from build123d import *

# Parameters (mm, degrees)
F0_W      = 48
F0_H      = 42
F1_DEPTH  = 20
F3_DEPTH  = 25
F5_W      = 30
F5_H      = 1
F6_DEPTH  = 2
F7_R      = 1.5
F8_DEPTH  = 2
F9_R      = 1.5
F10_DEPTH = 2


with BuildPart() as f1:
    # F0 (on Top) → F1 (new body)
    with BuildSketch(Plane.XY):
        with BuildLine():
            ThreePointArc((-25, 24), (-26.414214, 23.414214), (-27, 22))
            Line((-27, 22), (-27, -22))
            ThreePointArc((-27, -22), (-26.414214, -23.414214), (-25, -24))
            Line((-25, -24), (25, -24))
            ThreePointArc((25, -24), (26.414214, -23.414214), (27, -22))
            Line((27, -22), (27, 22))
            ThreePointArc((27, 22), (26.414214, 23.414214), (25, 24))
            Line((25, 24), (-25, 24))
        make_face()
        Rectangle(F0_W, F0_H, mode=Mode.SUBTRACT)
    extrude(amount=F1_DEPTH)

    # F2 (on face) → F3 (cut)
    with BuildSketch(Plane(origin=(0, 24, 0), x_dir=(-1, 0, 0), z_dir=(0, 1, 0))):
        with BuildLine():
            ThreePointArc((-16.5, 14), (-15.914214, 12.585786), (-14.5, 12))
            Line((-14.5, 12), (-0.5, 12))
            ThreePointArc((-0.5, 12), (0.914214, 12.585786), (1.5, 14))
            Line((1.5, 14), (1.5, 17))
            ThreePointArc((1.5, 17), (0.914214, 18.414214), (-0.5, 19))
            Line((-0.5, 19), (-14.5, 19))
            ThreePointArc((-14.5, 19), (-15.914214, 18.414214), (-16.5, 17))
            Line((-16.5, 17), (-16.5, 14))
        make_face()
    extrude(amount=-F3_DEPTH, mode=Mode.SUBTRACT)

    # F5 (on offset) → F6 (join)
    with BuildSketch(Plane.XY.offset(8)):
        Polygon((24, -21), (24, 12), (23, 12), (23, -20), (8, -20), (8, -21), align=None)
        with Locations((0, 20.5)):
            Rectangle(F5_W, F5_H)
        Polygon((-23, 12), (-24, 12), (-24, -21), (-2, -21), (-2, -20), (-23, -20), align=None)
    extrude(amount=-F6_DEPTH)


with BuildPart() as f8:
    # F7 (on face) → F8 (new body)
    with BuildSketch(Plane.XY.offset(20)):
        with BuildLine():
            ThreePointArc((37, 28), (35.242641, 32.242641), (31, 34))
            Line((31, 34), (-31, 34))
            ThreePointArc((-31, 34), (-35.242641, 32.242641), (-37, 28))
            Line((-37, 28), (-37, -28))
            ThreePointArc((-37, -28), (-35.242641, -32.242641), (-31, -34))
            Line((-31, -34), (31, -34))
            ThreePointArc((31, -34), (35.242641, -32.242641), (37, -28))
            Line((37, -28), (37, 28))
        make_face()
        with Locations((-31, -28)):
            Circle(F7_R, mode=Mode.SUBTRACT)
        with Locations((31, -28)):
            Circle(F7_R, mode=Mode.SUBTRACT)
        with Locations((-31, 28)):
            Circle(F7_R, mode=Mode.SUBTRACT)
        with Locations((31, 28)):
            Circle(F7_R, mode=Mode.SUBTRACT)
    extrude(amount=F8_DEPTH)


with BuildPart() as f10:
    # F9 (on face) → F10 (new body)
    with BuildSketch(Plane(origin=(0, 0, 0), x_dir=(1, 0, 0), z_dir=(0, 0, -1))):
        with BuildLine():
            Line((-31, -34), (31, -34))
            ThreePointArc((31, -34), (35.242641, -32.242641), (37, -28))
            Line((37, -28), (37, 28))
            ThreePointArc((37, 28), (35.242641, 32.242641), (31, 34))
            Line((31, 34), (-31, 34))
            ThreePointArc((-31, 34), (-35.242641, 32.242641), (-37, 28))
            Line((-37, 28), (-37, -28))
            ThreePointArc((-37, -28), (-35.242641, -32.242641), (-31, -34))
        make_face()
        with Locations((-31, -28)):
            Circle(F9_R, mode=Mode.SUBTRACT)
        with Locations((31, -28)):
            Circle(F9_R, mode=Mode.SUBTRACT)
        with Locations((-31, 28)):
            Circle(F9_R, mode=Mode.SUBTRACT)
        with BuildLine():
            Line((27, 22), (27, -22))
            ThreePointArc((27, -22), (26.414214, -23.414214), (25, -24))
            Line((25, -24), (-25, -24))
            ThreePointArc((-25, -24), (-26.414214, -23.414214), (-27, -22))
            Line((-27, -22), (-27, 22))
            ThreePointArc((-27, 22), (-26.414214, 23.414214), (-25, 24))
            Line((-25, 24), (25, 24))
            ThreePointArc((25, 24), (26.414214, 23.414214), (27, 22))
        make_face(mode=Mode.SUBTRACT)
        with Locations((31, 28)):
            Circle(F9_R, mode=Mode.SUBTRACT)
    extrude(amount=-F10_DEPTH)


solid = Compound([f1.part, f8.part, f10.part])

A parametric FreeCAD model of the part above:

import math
import FreeCAD as App
import Part
import Sketcher

V = App.Vector


def add_polygon(sketch, points):
    """Adds a closed chain of lines whose ends are joined by coincident constraints."""
    first, n = sketch.GeometryCount, len(points)
    for a, b in zip(points, points[1:] + points[:1]):
        sketch.addGeometry(Part.LineSegment(App.Vector(*a, 0), App.Vector(*b, 0)), False)
    for i in range(n):
        sketch.addConstraint(Sketcher.Constraint("Coincident", first + i, 2, first + (i + 1) % n, 1))

doc = App.newDocument("Part")
body = doc.addObject("PartDesign::Body", "Body")

# Sketch on XY plane
sketch1 = body.newObject("Sketcher::SketchObject", "Sketch")
sketch1.AttachmentSupport = (doc.getObject("XY_Plane"), [""])
sketch1.MapMode = "FlatFace"
sketch1.addGeometry(Part.ArcOfCircle(Part.Circle(V(-25.000001, 22.000001, 0), V(0, 0, 1), 1.999999), math.radians(89.999957), math.radians(180.000043)), False)  # 0
sketch1.addGeometry(Part.LineSegment(V(-27, 22, 0), V(-27, -22, 0)), False)  # 1
sketch1.addGeometry(Part.ArcOfCircle(Part.Circle(V(-25.000001, -22.000001, 0), V(0, 0, 1), 1.999999), math.radians(179.999957), math.radians(270.000043)), False)  # 2
sketch1.addGeometry(Part.LineSegment(V(-25, -24, 0), V(25, -24, 0)), False)  # 3
sketch1.addGeometry(Part.ArcOfCircle(Part.Circle(V(25.000001, -22.000001, 0), V(0, 0, 1), 1.999999), math.radians(-90.000043), math.radians(0.000043)), False)  # 4
sketch1.addGeometry(Part.LineSegment(V(27, -22, 0), V(27, 22, 0)), False)  # 5
sketch1.addGeometry(Part.ArcOfCircle(Part.Circle(V(25.000001, 22.000001, 0), V(0, 0, 1), 1.999999), math.radians(-0.000043), math.radians(90.000043)), False)  # 6
sketch1.addGeometry(Part.LineSegment(V(25, 24, 0), V(-25, 24, 0)), False)  # 7
add_polygon(sketch1, [(24, -21), (-24, -21), (-24, 21), (24, 21)])  # lines 8-11
sketch1.addConstraint(Sketcher.Constraint("Tangent", 0, 2, 1, 1))
sketch1.addConstraint(Sketcher.Constraint("Tangent", 1, 2, 2, 1))
sketch1.addConstraint(Sketcher.Constraint("Tangent", 2, 2, 3, 1))
sketch1.addConstraint(Sketcher.Constraint("Tangent", 3, 2, 4, 1))
sketch1.addConstraint(Sketcher.Constraint("Tangent", 4, 2, 5, 1))
sketch1.addConstraint(Sketcher.Constraint("Tangent", 5, 2, 6, 1))
sketch1.addConstraint(Sketcher.Constraint("Tangent", 6, 2, 7, 1))
sketch1.addConstraint(Sketcher.Constraint("Tangent", 7, 2, 0, 1))
sketch1.addConstraint(Sketcher.Constraint("Vertical", 1))
sketch1.addConstraint(Sketcher.Constraint("Horizontal", 3))
sketch1.addConstraint(Sketcher.Constraint("Vertical", 5))
sketch1.addConstraint(Sketcher.Constraint("Horizontal", 7))
sketch1.addConstraint(Sketcher.Constraint("Horizontal", 8))
sketch1.addConstraint(Sketcher.Constraint("Vertical", 9))
sketch1.addConstraint(Sketcher.Constraint("Horizontal", 10))
sketch1.addConstraint(Sketcher.Constraint("Vertical", 11))
sketch1.addConstraint(Sketcher.Constraint("Equal", 0, 2))
sketch1.addConstraint(Sketcher.Constraint("Equal", 2, 4))
sketch1.addConstraint(Sketcher.Constraint("Equal", 4, 6))
sketch1.addConstraint(Sketcher.Constraint("Symmetric", 0, 3, 4, 3, -1, 1))
sketch1.addConstraint(Sketcher.Constraint("Symmetric", 8, 2, 10, 2, -1, 1))
sketch1.addConstraint(Sketcher.Constraint("Radius", 0, 1.999999))
sketch1.addConstraint(Sketcher.Constraint("DistanceX", 3, 1, 3, 2, 50.0))
sketch1.addConstraint(Sketcher.Constraint("DistanceX", 8, 2, 8, 1, 48.0))
sketch1.addConstraint(Sketcher.Constraint("DistanceY", 1, 2, 1, 1, 44.0))
sketch1.addConstraint(Sketcher.Constraint("DistanceY", 9, 1, 9, 2, 42.0))
pad1 = body.newObject("PartDesign::Pad", "Pad")
pad1.Profile = sketch1
pad1.Length = 20

# Sketch on XZ plane
sketch2 = body.newObject("Sketcher::SketchObject", "Sketch001")
sketch2.AttachmentSupport = (doc.getObject("XZ_Plane"), [""])
sketch2.MapMode = "FlatFace"
sketch2.AttachmentOffset = App.Placement(V(0, 0, -24), App.Rotation())
sketch2.addGeometry(Part.ArcOfCircle(Part.Circle(V(14.500001, 13.999999, 0), V(0, 0, 1), 1.999999), math.radians(-90.000043), math.radians(0.000043)), False)
sketch2.addGeometry(Part.LineSegment(V(14.5, 12, 0), V(0.5, 12, 0)), False)
sketch2.addGeometry(Part.ArcOfCircle(Part.Circle(V(0.499999, 13.999999, 0), V(0, 0, 1), 1.999999), math.radians(179.999957), math.radians(270.000043)), False)
sketch2.addGeometry(Part.LineSegment(V(-1.5, 14, 0), V(-1.5, 17, 0)), False)
sketch2.addGeometry(Part.ArcOfCircle(Part.Circle(V(0.499999, 17.000001, 0), V(0, 0, 1), 1.999999), math.radians(89.999957), math.radians(180.000043)), False)
sketch2.addGeometry(Part.LineSegment(V(0.5, 19, 0), V(14.5, 19, 0)), False)
sketch2.addGeometry(Part.ArcOfCircle(Part.Circle(V(14.500001, 17.000001, 0), V(0, 0, 1), 1.999999), math.radians(-0.000043), math.radians(90.000043)), False)
sketch2.addGeometry(Part.LineSegment(V(16.5, 17, 0), V(16.5, 14, 0)), False)
sketch2.addConstraint(Sketcher.Constraint("Tangent", 0, 1, 1, 1))
sketch2.addConstraint(Sketcher.Constraint("Tangent", 1, 2, 2, 2))
sketch2.addConstraint(Sketcher.Constraint("Tangent", 2, 1, 3, 1))
sketch2.addConstraint(Sketcher.Constraint("Tangent", 3, 2, 4, 2))
sketch2.addConstraint(Sketcher.Constraint("Tangent", 4, 1, 5, 1))
sketch2.addConstraint(Sketcher.Constraint("Tangent", 5, 2, 6, 2))
sketch2.addConstraint(Sketcher.Constraint("Tangent", 6, 1, 7, 1))
sketch2.addConstraint(Sketcher.Constraint("Tangent", 7, 2, 0, 2))
sketch2.addConstraint(Sketcher.Constraint("Horizontal", 1))
sketch2.addConstraint(Sketcher.Constraint("Vertical", 3))
sketch2.addConstraint(Sketcher.Constraint("Horizontal", 5))
sketch2.addConstraint(Sketcher.Constraint("Vertical", 7))
sketch2.addConstraint(Sketcher.Constraint("Equal", 0, 2))
sketch2.addConstraint(Sketcher.Constraint("Equal", 2, 4))
sketch2.addConstraint(Sketcher.Constraint("Equal", 4, 6))
sketch2.addConstraint(Sketcher.Constraint("Radius", 0, 1.999999))
sketch2.addConstraint(Sketcher.Constraint("DistanceX", 1, 2, 1, 1, 14.0))
sketch2.addConstraint(Sketcher.Constraint("DistanceY", 3, 1, 3, 2, 3.0))
sketch2.addConstraint(Sketcher.Constraint("DistanceY", -1, 1, 0, 3, 13.999999))
sketch2.addConstraint(Sketcher.Constraint("DistanceX", -1, 1, 0, 3, 14.500001))
pocket1 = body.newObject("PartDesign::Pocket", "Pocket")
pocket1.Profile = sketch2
pocket1.Length = 25
pocket1.Reversed = True

# Sketch on XY plane
sketch3 = body.newObject("Sketcher::SketchObject", "Sketch002")
sketch3.AttachmentSupport = (doc.getObject("XY_Plane"), [""])
sketch3.MapMode = "FlatFace"
sketch3.AttachmentOffset = App.Placement(V(0, 0, 8), App.Rotation())
add_polygon(sketch3, [(24, -21), (24, 12), (23, 12), (23, -20), (8, -20), (8, -21)])  # lines 0-5
add_polygon(sketch3, [(-15, 21), (-15, 20), (15, 20), (15, 21)])  # lines 6-9
add_polygon(sketch3, [(-23, 12), (-24, 12), (-24, -21), (-2, -21), (-2, -20), (-23, -20)])  # lines 10-15
sketch3.addConstraint(Sketcher.Constraint("Vertical", 0))
sketch3.addConstraint(Sketcher.Constraint("Horizontal", 1))
sketch3.addConstraint(Sketcher.Constraint("Vertical", 2))
sketch3.addConstraint(Sketcher.Constraint("Horizontal", 3))
sketch3.addConstraint(Sketcher.Constraint("Vertical", 4))
sketch3.addConstraint(Sketcher.Constraint("Horizontal", 5))
sketch3.addConstraint(Sketcher.Constraint("Vertical", 6))
sketch3.addConstraint(Sketcher.Constraint("Horizontal", 7))
sketch3.addConstraint(Sketcher.Constraint("Vertical", 8))
sketch3.addConstraint(Sketcher.Constraint("Horizontal", 9))
sketch3.addConstraint(Sketcher.Constraint("Horizontal", 10))
sketch3.addConstraint(Sketcher.Constraint("Vertical", 11))
sketch3.addConstraint(Sketcher.Constraint("Horizontal", 12))
sketch3.addConstraint(Sketcher.Constraint("Vertical", 13))
sketch3.addConstraint(Sketcher.Constraint("Horizontal", 14))
sketch3.addConstraint(Sketcher.Constraint("Vertical", 15))
sketch3.addConstraint(Sketcher.Constraint("Symmetric", 0, 2, 10, 2, -2))
sketch3.addConstraint(Sketcher.Constraint("Symmetric", 2, 2, 14, 2, -2))
sketch3.addConstraint(Sketcher.Constraint("Horizontal", 5, 2, 11, 2))
sketch3.addConstraint(Sketcher.Constraint("Equal", 10, 4))
sketch3.addConstraint(Sketcher.Constraint("Equal", 4, 6))
sketch3.addConstraint(Sketcher.Constraint("DistanceX", 1, 2, 1, 1, 1.0))
sketch3.addConstraint(Sketcher.Constraint("DistanceX", 3, 2, 3, 1, 15.0))
sketch3.addConstraint(Sketcher.Constraint("DistanceX", 7, 1, 7, 2, 30.0))
sketch3.addConstraint(Sketcher.Constraint("DistanceX", 12, 1, 12, 2, 22.0))
sketch3.addConstraint(Sketcher.Constraint("DistanceY", 0, 1, 0, 2, 33.0))
sketch3.addConstraint(Sketcher.Constraint("DistanceX", -1, 1, 0, 2, 24.0))
sketch3.addConstraint(Sketcher.Constraint("DistanceY", -1, 1, 0, 2, 12.0))
sketch3.addConstraint(Sketcher.Constraint("DistanceX", 6, 2, -1, 1, 15.0))
sketch3.addConstraint(Sketcher.Constraint("DistanceY", -1, 1, 6, 2, 20.0))
pad2 = body.newObject("PartDesign::Pad", "Pad001")
pad2.Profile = sketch3
pad2.Length = 2
pad2.Reversed = True
body2 = doc.addObject("PartDesign::Body", "Body001")

# Sketch on XY plane
sketch4 = body2.newObject("Sketcher::SketchObject", "Sketch003")
sketch4.AttachmentSupport = (doc.getObject("XY_Plane001"), [""])
sketch4.MapMode = "FlatFace"
sketch4.AttachmentOffset = App.Placement(V(0, 0, 20), App.Rotation())
sketch4.addGeometry(Part.ArcOfCircle(Part.Circle(V(31.000001, 28.000001, 0), V(0, 0, 1), 5.999999), math.radians(-0.00001), math.radians(90.00001)), False)
sketch4.addGeometry(Part.LineSegment(V(31, 34, 0), V(-31, 34, 0)), False)
sketch4.addGeometry(Part.ArcOfCircle(Part.Circle(V(-31.000001, 28.000001, 0), V(0, 0, 1), 5.999999), math.radians(89.99999), math.radians(180.00001)), False)
sketch4.addGeometry(Part.LineSegment(V(-37, 28, 0), V(-37, -28, 0)), False)
sketch4.addGeometry(Part.ArcOfCircle(Part.Circle(V(-31.000001, -28.000001, 0), V(0, 0, 1), 5.999999), math.radians(179.99999), math.radians(270.00001)), False)
sketch4.addGeometry(Part.LineSegment(V(-31, -34, 0), V(31, -34, 0)), False)
sketch4.addGeometry(Part.ArcOfCircle(Part.Circle(V(31.000001, -28.000001, 0), V(0, 0, 1), 5.999999), math.radians(-90.00001), math.radians(0.00001)), False)
sketch4.addGeometry(Part.LineSegment(V(37, -28, 0), V(37, 28, 0)), False)
sketch4.addGeometry(Part.Circle(V(-31, -28, 0), V(0, 0, 1), 1.5), False)
sketch4.addGeometry(Part.Circle(V(31, -28, 0), V(0, 0, 1), 1.5), False)
sketch4.addGeometry(Part.Circle(V(-31, 28, 0), V(0, 0, 1), 1.5), False)
sketch4.addGeometry(Part.Circle(V(31, 28, 0), V(0, 0, 1), 1.5), False)
sketch4.addConstraint(Sketcher.Constraint("Tangent", 0, 2, 1, 1))
sketch4.addConstraint(Sketcher.Constraint("Tangent", 1, 2, 2, 1))
sketch4.addConstraint(Sketcher.Constraint("Tangent", 2, 2, 3, 1))
sketch4.addConstraint(Sketcher.Constraint("Tangent", 3, 2, 4, 1))
sketch4.addConstraint(Sketcher.Constraint("Tangent", 4, 2, 5, 1))
sketch4.addConstraint(Sketcher.Constraint("Tangent", 5, 2, 6, 1))
sketch4.addConstraint(Sketcher.Constraint("Tangent", 6, 2, 7, 1))
sketch4.addConstraint(Sketcher.Constraint("Tangent", 7, 2, 0, 1))
sketch4.addConstraint(Sketcher.Constraint("Horizontal", 1))
sketch4.addConstraint(Sketcher.Constraint("Vertical", 3))
sketch4.addConstraint(Sketcher.Constraint("Horizontal", 5))
sketch4.addConstraint(Sketcher.Constraint("Vertical", 7))
sketch4.addConstraint(Sketcher.Constraint("Coincident", 8, 3, 4, 3))
sketch4.addConstraint(Sketcher.Constraint("Coincident", 9, 3, 6, 3))
sketch4.addConstraint(Sketcher.Constraint("Coincident", 10, 3, 2, 3))
sketch4.addConstraint(Sketcher.Constraint("Coincident", 11, 3, 0, 3))
sketch4.addConstraint(Sketcher.Constraint("Equal", 0, 2))
sketch4.addConstraint(Sketcher.Constraint("Equal", 2, 4))
sketch4.addConstraint(Sketcher.Constraint("Equal", 4, 6))
sketch4.addConstraint(Sketcher.Constraint("Equal", 8, 9))
sketch4.addConstraint(Sketcher.Constraint("Equal", 9, 10))
sketch4.addConstraint(Sketcher.Constraint("Equal", 10, 11))
sketch4.addConstraint(Sketcher.Constraint("Symmetric", 0, 3, 4, 3, -1, 1))
sketch4.addConstraint(Sketcher.Constraint("Diameter", 8, 3.0))
sketch4.addConstraint(Sketcher.Constraint("Radius", 0, 5.999999))
sketch4.addConstraint(Sketcher.Constraint("DistanceX", 1, 2, 1, 1, 62.0))
sketch4.addConstraint(Sketcher.Constraint("DistanceY", 3, 2, 3, 1, 56.0))
pad3 = body2.newObject("PartDesign::Pad", "Pad002")
pad3.Profile = sketch4
pad3.Length = 2
body3 = doc.addObject("PartDesign::Body", "Body002")

# Sketch on XY plane
sketch5 = body3.newObject("Sketcher::SketchObject", "Sketch004")
sketch5.AttachmentSupport = (doc.getObject("XY_Plane002"), [""])
sketch5.MapMode = "FlatFace"
sketch5.addGeometry(Part.LineSegment(V(-31, 34, 0), V(31, 34, 0)), False)
sketch5.addGeometry(Part.ArcOfCircle(Part.Circle(V(31.000001, 28.000001, 0), V(0, 0, 1), 5.999999), math.radians(-0.00001), math.radians(90.00001)), False)
sketch5.addGeometry(Part.LineSegment(V(37, 28, 0), V(37, -28, 0)), False)
sketch5.addGeometry(Part.ArcOfCircle(Part.Circle(V(31.000001, -28.000001, 0), V(0, 0, 1), 5.999999), math.radians(-90.00001), math.radians(0.00001)), False)
sketch5.addGeometry(Part.LineSegment(V(31, -34, 0), V(-31, -34, 0)), False)
sketch5.addGeometry(Part.ArcOfCircle(Part.Circle(V(-31.000001, -28.000001, 0), V(0, 0, 1), 5.999999), math.radians(179.99999), math.radians(270.00001)), False)
sketch5.addGeometry(Part.LineSegment(V(-37, -28, 0), V(-37, 28, 0)), False)
sketch5.addGeometry(Part.ArcOfCircle(Part.Circle(V(-31.000001, 28.000001, 0), V(0, 0, 1), 5.999999), math.radians(89.99999), math.radians(180.00001)), False)
sketch5.addGeometry(Part.Circle(V(-31, 28, 0), V(0, 0, 1), 1.5), False)
sketch5.addGeometry(Part.Circle(V(31, 28, 0), V(0, 0, 1), 1.5), False)
sketch5.addGeometry(Part.Circle(V(-31, -28, 0), V(0, 0, 1), 1.5), False)
sketch5.addGeometry(Part.ArcOfCircle(Part.Circle(V(25.000001, -22.000001, 0), V(0, 0, 1), 1.999999), math.radians(-90.000043), math.radians(0.000043)), False)
sketch5.addGeometry(Part.LineSegment(V(27, -22, 0), V(27, 22, 0)), False)
sketch5.addGeometry(Part.ArcOfCircle(Part.Circle(V(25.000001, 22.000001, 0), V(0, 0, 1), 1.999999), math.radians(-0.000043), math.radians(90.000043)), False)
sketch5.addGeometry(Part.LineSegment(V(25, 24, 0), V(-25, 24, 0)), False)
sketch5.addGeometry(Part.ArcOfCircle(Part.Circle(V(-25.000001, 22.000001, 0), V(0, 0, 1), 1.999999), math.radians(89.999957), math.radians(180.000043)), False)
sketch5.addGeometry(Part.LineSegment(V(-27, 22, 0), V(-27, -22, 0)), False)
sketch5.addGeometry(Part.ArcOfCircle(Part.Circle(V(-25.000001, -22.000001, 0), V(0, 0, 1), 1.999999), math.radians(179.999957), math.radians(270.000043)), False)
sketch5.addGeometry(Part.LineSegment(V(-25, -24, 0), V(25, -24, 0)), False)
sketch5.addGeometry(Part.Circle(V(31, -28, 0), V(0, 0, 1), 1.5), False)
sketch5.addConstraint(Sketcher.Constraint("Tangent", 0, 2, 1, 2))
sketch5.addConstraint(Sketcher.Constraint("Tangent", 1, 1, 2, 1))
sketch5.addConstraint(Sketcher.Constraint("Tangent", 2, 2, 3, 2))
sketch5.addConstraint(Sketcher.Constraint("Tangent", 3, 1, 4, 1))
sketch5.addConstraint(Sketcher.Constraint("Tangent", 4, 2, 5, 2))
sketch5.addConstraint(Sketcher.Constraint("Tangent", 5, 1, 6, 1))
sketch5.addConstraint(Sketcher.Constraint("Tangent", 6, 2, 7, 2))
sketch5.addConstraint(Sketcher.Constraint("Tangent", 7, 1, 0, 1))
sketch5.addConstraint(Sketcher.Constraint("Tangent", 11, 2, 12, 1))
sketch5.addConstraint(Sketcher.Constraint("Tangent", 12, 2, 13, 1))
sketch5.addConstraint(Sketcher.Constraint("Tangent", 13, 2, 14, 1))
sketch5.addConstraint(Sketcher.Constraint("Tangent", 14, 2, 15, 1))
sketch5.addConstraint(Sketcher.Constraint("Tangent", 15, 2, 16, 1))
sketch5.addConstraint(Sketcher.Constraint("Tangent", 16, 2, 17, 1))
sketch5.addConstraint(Sketcher.Constraint("Tangent", 17, 2, 18, 1))
sketch5.addConstraint(Sketcher.Constraint("Tangent", 18, 2, 11, 1))
sketch5.addConstraint(Sketcher.Constraint("Horizontal", 0))
sketch5.addConstraint(Sketcher.Constraint("Vertical", 2))
sketch5.addConstraint(Sketcher.Constraint("Horizontal", 4))
sketch5.addConstraint(Sketcher.Constraint("Vertical", 6))
sketch5.addConstraint(Sketcher.Constraint("Vertical", 12))
sketch5.addConstraint(Sketcher.Constraint("Horizontal", 14))
sketch5.addConstraint(Sketcher.Constraint("Vertical", 16))
sketch5.addConstraint(Sketcher.Constraint("Horizontal", 18))
sketch5.addConstraint(Sketcher.Constraint("Coincident", 8, 3, 7, 3))
sketch5.addConstraint(Sketcher.Constraint("Coincident", 9, 3, 1, 3))
sketch5.addConstraint(Sketcher.Constraint("Coincident", 10, 3, 5, 3))
sketch5.addConstraint(Sketcher.Constraint("Coincident", 19, 3, 3, 3))
sketch5.addConstraint(Sketcher.Constraint("Equal", 1, 3))
sketch5.addConstraint(Sketcher.Constraint("Equal", 3, 5))
sketch5.addConstraint(Sketcher.Constraint("Equal", 5, 7))
sketch5.addConstraint(Sketcher.Constraint("Equal", 8, 9))
sketch5.addConstraint(Sketcher.Constraint("Equal", 9, 10))
sketch5.addConstraint(Sketcher.Constraint("Equal", 11, 13))
sketch5.addConstraint(Sketcher.Constraint("Equal", 13, 15))
sketch5.addConstraint(Sketcher.Constraint("Equal", 15, 17))
sketch5.addConstraint(Sketcher.Constraint("Equal", 10, 19))
sketch5.addConstraint(Sketcher.Constraint("Symmetric", 1, 3, 5, 3, -1, 1))
sketch5.addConstraint(Sketcher.Constraint("Symmetric", 11, 3, 15, 3, -1, 1))
sketch5.addConstraint(Sketcher.Constraint("Diameter", 8, 3.0))
sketch5.addConstraint(Sketcher.Constraint("Radius", 1, 5.999999))
sketch5.addConstraint(Sketcher.Constraint("Radius", 11, 1.999999))
sketch5.addConstraint(Sketcher.Constraint("DistanceX", 0, 1, 0, 2, 62.0))
sketch5.addConstraint(Sketcher.Constraint("DistanceX", 14, 2, 14, 1, 50.0))
sketch5.addConstraint(Sketcher.Constraint("DistanceY", 2, 2, 2, 1, 56.0))
sketch5.addConstraint(Sketcher.Constraint("DistanceY", 12, 1, 12, 2, 44.0))
pad4 = body3.newObject("PartDesign::Pad", "Pad003")
pad4.Profile = sketch5
pad4.Length = 2

doc.recompute()
